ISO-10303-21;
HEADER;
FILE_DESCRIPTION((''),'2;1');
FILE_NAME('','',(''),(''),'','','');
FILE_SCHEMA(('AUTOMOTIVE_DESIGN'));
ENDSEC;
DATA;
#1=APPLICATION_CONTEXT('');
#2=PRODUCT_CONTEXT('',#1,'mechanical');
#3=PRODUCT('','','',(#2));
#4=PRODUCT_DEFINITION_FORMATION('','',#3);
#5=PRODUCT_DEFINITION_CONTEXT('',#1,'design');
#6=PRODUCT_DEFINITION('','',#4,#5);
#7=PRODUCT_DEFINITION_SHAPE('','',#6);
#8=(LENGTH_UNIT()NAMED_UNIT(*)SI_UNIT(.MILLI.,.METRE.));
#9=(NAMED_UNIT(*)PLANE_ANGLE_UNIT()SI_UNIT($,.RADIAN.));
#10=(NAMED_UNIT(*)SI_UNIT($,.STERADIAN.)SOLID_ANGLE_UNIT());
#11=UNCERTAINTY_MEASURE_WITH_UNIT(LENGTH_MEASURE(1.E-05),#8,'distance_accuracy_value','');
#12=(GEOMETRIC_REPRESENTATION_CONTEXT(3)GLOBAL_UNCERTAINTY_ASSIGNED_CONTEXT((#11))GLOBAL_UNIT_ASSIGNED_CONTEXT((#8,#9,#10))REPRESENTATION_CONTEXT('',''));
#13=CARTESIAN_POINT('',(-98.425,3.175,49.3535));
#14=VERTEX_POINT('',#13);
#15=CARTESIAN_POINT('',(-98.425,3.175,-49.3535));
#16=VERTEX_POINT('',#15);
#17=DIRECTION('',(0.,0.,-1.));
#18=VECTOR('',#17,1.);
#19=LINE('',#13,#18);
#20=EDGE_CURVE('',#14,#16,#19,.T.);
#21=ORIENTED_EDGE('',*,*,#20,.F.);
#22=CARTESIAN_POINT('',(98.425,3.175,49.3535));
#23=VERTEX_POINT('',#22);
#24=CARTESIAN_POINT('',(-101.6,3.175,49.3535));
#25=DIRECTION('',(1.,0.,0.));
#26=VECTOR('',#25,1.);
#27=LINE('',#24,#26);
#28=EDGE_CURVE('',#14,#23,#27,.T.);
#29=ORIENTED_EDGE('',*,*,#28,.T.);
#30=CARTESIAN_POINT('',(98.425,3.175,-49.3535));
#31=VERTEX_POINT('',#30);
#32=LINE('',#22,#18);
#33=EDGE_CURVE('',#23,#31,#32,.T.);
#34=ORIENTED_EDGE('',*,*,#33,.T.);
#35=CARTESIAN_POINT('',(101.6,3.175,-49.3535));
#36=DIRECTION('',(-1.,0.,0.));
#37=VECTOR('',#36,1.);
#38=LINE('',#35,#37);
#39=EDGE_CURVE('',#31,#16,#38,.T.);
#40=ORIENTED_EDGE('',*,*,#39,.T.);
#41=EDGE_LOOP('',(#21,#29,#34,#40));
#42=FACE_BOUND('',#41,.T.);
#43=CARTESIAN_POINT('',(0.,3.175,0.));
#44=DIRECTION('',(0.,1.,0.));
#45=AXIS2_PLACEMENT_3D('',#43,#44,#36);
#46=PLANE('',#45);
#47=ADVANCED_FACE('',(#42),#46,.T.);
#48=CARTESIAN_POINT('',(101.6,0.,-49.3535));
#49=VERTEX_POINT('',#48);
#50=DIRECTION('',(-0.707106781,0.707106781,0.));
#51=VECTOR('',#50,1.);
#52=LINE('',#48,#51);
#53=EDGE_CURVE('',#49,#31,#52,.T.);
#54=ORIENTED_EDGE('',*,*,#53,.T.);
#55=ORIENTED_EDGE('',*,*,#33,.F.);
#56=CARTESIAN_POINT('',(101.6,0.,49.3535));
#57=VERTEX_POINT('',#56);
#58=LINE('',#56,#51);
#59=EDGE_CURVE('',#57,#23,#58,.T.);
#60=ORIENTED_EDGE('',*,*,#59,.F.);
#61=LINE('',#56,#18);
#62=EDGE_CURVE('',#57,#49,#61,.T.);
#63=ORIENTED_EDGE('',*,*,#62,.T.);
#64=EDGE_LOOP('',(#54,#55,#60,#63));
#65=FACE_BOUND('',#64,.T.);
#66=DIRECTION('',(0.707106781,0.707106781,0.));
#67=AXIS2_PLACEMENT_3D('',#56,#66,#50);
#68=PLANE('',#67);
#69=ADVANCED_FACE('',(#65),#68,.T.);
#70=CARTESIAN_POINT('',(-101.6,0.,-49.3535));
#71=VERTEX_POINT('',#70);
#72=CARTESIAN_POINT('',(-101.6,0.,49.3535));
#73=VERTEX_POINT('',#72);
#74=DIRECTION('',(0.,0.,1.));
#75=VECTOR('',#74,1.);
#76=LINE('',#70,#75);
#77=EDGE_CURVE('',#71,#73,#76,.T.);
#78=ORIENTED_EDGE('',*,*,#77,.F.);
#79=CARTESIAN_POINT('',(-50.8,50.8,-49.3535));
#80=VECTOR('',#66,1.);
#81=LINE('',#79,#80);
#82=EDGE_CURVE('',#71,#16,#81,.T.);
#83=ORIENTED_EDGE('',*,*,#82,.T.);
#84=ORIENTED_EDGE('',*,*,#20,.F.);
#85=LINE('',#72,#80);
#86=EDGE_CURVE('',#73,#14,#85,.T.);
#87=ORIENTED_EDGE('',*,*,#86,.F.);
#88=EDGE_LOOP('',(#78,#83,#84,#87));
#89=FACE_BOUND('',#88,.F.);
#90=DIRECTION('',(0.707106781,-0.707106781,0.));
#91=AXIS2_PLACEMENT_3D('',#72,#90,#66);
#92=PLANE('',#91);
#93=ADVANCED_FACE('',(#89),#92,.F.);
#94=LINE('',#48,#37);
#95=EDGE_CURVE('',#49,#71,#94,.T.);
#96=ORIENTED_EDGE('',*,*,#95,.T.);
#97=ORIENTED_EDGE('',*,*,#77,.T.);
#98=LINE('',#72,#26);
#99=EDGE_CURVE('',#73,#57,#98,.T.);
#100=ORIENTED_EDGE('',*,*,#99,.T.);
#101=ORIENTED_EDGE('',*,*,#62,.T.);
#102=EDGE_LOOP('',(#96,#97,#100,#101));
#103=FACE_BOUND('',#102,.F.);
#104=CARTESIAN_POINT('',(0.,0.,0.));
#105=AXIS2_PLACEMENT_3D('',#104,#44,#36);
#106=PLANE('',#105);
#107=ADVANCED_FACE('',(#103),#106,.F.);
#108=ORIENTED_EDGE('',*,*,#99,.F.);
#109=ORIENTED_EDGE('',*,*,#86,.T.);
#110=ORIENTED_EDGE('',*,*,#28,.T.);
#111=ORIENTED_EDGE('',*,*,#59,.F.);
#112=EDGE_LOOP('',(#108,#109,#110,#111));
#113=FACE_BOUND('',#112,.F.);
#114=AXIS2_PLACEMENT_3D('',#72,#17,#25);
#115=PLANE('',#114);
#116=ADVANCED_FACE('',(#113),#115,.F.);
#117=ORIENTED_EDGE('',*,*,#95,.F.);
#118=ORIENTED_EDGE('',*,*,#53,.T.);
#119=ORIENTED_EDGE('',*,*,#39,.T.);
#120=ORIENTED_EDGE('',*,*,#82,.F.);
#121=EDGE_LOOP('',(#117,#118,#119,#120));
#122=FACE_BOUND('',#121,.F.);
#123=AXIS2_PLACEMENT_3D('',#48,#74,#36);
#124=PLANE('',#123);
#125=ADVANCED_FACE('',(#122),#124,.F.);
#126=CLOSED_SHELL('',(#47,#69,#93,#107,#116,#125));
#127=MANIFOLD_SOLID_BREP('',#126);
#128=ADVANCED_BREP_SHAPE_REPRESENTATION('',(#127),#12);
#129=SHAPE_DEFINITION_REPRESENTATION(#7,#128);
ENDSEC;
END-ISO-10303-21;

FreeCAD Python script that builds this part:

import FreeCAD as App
import Part
import Sketcher
from FreeCAD import Vector
Q = App.Units.Quantity


def add_polygon(sketch, points):
    """Adds a closed chain of lines whose ends are joined by coincident constraints."""
    first, n = sketch.GeometryCount, len(points)
    for a, b in zip(points, points[1:] + points[:1]):
        sketch.addGeometry(Part.LineSegment(App.Vector(*a, 0), App.Vector(*b, 0)), False)
    for i in range(n):
        sketch.addConstraint(Sketcher.Constraint("Coincident", first + i, 2, first + (i + 1) % n, 1))

doc = App.newDocument("Part")
body = doc.addObject("PartDesign::Body", "Body")

sketch1 = body.newObject("Sketcher::SketchObject", "Sketch")
sketch1.AttachmentSupport = (doc.getObject("XZ_Plane"), [""])
sketch1.MapMode = "FlatFace"
add_polygon(sketch1, [(-102, -49), (-102, 49), (102, 49), (102, -49)])
sketch1.addConstraint([
    Sketcher.Constraint("Vertical", 0),
    Sketcher.Constraint("Horizontal", 1),
    Sketcher.Constraint("Vertical", 2),
    Sketcher.Constraint("Horizontal", 3),
    Sketcher.Constraint("Symmetric", 0, 2, 2, 2, -1, 1),
    Sketcher.Constraint("DistanceX", 1, 1, 1, 2, Q("8 in")),
    Sketcher.Constraint("DistanceY", 0, 1, 0, 2, Q("3.8861 in")),
])
pad1 = body.newObject("PartDesign::Pad", "Pad")
pad1.Profile = sketch1
pad1.Length = Q("0.125 in")
pad1.Reversed = True

sketch2 = body.newObject("Sketcher::SketchObject", "Sketch001")
sketch2.AttachmentSupport = (doc.getObject("XY_Plane"), [""])
sketch2.MapMode = "FlatFace"
sketch2.AttachmentOffset = App.Placement(Vector(0, 0, 49.3535), App.Rotation())
add_polygon(sketch2, [(-101.6, 3.2), (-101.6, 0), (-98.4, 3.2)])
add_polygon(sketch2, [(98.4, 3.2), (101.6, 0), (101.6, 3.2)])
sketch2.addConstraint([
    Sketcher.Constraint("Vertical", 0),
    Sketcher.Constraint("Horizontal", 2),
    Sketcher.Constraint("Vertical", 4),
    Sketcher.Constraint("Horizontal", 5),
    Sketcher.Constraint("Symmetric", 0, 2, 3, 2, -1, 1),
    Sketcher.Constraint("Symmetric", 1, 2, 5, 2, -2),
    Sketcher.Constraint("PointOnObject", 0, 2, -1),
    Sketcher.Constraint("Perpendicular", 1, 3),
    Sketcher.Constraint("DistanceX", 0, 2, -1, 1, Q("4 in")),
    Sketcher.Constraint("DistanceX", 2, 2, 2, 1, Q("0.125 in")),
])
pocket1 = body.newObject("PartDesign::Pocket", "Pocket")
pocket1.Profile = sketch2
pocket1.Type = "ThroughAll"

doc.recompute()
